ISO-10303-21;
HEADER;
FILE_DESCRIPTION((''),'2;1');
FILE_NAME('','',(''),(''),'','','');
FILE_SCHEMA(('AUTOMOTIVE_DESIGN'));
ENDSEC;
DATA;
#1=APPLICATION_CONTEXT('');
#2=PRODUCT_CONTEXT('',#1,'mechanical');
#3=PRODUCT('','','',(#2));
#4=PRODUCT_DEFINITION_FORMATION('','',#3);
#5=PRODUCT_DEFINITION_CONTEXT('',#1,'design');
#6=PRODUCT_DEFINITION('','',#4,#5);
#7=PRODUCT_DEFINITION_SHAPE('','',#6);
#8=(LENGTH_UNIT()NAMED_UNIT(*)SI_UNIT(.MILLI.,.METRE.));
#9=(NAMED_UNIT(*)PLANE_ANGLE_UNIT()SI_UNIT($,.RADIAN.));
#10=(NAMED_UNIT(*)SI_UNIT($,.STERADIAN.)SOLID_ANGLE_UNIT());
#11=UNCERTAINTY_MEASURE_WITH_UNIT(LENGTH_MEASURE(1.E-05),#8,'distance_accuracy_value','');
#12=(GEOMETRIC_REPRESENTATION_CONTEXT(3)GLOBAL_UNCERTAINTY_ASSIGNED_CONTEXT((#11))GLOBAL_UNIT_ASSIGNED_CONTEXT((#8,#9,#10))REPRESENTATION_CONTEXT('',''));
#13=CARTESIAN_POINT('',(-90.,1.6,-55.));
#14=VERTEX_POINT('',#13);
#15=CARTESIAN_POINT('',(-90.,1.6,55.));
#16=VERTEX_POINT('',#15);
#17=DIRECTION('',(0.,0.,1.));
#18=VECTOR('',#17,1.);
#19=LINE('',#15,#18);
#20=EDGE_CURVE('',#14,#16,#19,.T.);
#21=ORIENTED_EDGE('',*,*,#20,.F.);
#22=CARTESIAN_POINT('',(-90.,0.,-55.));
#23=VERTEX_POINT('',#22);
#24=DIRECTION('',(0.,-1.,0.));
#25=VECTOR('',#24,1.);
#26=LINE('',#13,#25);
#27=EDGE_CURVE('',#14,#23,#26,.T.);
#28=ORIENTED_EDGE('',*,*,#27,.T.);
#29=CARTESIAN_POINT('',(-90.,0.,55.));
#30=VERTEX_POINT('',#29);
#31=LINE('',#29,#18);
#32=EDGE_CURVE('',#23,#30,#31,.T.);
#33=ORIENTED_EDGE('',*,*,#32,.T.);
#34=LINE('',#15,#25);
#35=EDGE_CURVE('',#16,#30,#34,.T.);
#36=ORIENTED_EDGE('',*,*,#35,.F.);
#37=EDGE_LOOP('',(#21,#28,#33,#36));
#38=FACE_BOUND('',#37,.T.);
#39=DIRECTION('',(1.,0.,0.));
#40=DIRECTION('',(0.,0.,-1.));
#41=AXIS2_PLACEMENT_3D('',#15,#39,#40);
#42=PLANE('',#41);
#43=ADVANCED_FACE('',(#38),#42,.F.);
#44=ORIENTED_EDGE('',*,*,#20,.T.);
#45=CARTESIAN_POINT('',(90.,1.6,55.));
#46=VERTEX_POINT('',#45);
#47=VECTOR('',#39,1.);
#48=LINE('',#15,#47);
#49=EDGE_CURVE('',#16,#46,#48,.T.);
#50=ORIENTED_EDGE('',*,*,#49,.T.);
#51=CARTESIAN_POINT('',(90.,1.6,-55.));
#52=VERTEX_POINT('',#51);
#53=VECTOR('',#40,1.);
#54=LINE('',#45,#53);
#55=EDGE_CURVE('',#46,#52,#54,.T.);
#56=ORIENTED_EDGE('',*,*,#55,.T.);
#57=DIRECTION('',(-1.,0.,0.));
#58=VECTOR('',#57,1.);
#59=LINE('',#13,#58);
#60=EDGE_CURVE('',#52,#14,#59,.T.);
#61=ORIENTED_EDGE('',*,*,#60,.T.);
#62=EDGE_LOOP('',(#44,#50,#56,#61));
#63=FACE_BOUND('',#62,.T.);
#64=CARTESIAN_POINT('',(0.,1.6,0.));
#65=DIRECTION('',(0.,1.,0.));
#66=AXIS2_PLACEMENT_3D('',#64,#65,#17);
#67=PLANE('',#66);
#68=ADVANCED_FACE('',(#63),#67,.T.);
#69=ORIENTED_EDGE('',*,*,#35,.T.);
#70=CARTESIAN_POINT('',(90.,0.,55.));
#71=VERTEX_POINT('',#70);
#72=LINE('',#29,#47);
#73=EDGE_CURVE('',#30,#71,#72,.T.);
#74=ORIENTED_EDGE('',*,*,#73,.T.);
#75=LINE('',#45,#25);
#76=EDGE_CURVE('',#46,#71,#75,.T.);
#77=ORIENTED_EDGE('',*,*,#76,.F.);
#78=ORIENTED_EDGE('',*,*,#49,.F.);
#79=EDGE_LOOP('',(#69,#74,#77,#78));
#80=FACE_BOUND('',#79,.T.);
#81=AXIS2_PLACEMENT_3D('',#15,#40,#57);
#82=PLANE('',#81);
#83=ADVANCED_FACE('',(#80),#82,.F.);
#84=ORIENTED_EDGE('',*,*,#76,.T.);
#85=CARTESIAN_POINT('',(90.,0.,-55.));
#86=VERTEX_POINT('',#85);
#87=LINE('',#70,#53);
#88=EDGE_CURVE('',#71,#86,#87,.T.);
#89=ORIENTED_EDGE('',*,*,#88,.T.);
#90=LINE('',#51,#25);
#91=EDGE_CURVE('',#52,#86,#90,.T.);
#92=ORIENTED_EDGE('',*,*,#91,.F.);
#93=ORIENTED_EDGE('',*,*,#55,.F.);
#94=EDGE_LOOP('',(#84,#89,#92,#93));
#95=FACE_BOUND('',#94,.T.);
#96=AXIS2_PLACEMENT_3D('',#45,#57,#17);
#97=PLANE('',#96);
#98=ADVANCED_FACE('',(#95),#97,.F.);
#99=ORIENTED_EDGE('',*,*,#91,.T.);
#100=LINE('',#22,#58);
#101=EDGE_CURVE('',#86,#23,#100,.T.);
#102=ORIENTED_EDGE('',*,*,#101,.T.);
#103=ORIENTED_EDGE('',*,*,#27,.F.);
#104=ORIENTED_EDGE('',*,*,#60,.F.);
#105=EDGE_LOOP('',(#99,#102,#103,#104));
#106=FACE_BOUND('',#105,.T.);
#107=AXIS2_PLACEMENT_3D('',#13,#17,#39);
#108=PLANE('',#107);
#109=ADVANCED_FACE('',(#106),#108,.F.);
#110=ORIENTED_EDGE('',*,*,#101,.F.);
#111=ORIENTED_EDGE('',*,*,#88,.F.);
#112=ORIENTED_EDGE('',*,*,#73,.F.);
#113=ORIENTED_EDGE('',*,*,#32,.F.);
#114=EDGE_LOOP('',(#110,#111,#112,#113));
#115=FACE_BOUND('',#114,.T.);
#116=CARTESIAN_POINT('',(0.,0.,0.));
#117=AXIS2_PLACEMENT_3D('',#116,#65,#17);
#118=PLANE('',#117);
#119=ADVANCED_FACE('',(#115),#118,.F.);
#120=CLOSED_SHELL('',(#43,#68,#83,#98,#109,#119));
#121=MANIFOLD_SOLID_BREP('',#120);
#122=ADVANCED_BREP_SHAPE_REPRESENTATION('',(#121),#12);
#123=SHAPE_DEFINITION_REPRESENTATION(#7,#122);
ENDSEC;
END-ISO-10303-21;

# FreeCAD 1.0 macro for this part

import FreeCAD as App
import Part
import Sketcher

V = App.Vector

doc = App.newDocument("Part")
params = doc.addObject("Spreadsheet::Sheet", "Params")
for row, (alias, value) in enumerate([
    ("sketch1_width", "180 mm"),
    ("sketch1_height", "110 mm"),
    ("pad1_length", "1.6 mm"),
], start=1):
    params.set(f"A{row}", alias)
    params.set(f"B{row}", "=" + value)
    params.setAlias(f"B{row}", alias)

body = doc.addObject("PartDesign::Body", "Body")

# Sketch on XZ plane
sketch1 = body.newObject("Sketcher::SketchObject", "Sketch")
sketch1.AttachmentSupport = (doc.getObject("XZ_Plane"), [""])
sketch1.MapMode = "FlatFace"
sketch1.addGeometry([
    Part.LineSegment(V(-90, -55, 0), V(-90, 55, 0)),
    Part.LineSegment(V(-90, 55, 0), V(90, 55, 0)),
    Part.LineSegment(V(90, 55, 0), V(90, -55, 0)),
    Part.LineSegment(V(90, -55, 0), V(-90, -55, 0)),
], False)
sketch1.addConstraint([
    Sketcher.Constraint("Coincident", 0, 2, 1, 1),
    Sketcher.Constraint("Coincident", 1, 2, 2, 1),
    Sketcher.Constraint("Coincident", 2, 2, 3, 1),
    Sketcher.Constraint("Coincident", 3, 2, 0, 1),
    Sketcher.Constraint("Vertical", 0),
    Sketcher.Constraint("Horizontal", 1),
    Sketcher.Constraint("Vertical", 2),
    Sketcher.Constraint("Horizontal", 3),
    Sketcher.Constraint("Symmetric", 0, 2, 2, 2, -1, 1),
    Sketcher.Constraint("DistanceX", 1, 1, 1, 2, 180.0),
    Sketcher.Constraint("DistanceY", 0, 1, 0, 2, 110.0),
])
sketch1.setExpression("Constraints[9]", "Params.sketch1_width")
sketch1.setExpression("Constraints[10]", "Params.sketch1_height")
pad1 = body.newObject("PartDesign::Pad", "Pad")
pad1.Profile = sketch1
pad1.setExpression("Length", "Params.pad1_length")
pad1.Reversed = True

doc.recompute()
